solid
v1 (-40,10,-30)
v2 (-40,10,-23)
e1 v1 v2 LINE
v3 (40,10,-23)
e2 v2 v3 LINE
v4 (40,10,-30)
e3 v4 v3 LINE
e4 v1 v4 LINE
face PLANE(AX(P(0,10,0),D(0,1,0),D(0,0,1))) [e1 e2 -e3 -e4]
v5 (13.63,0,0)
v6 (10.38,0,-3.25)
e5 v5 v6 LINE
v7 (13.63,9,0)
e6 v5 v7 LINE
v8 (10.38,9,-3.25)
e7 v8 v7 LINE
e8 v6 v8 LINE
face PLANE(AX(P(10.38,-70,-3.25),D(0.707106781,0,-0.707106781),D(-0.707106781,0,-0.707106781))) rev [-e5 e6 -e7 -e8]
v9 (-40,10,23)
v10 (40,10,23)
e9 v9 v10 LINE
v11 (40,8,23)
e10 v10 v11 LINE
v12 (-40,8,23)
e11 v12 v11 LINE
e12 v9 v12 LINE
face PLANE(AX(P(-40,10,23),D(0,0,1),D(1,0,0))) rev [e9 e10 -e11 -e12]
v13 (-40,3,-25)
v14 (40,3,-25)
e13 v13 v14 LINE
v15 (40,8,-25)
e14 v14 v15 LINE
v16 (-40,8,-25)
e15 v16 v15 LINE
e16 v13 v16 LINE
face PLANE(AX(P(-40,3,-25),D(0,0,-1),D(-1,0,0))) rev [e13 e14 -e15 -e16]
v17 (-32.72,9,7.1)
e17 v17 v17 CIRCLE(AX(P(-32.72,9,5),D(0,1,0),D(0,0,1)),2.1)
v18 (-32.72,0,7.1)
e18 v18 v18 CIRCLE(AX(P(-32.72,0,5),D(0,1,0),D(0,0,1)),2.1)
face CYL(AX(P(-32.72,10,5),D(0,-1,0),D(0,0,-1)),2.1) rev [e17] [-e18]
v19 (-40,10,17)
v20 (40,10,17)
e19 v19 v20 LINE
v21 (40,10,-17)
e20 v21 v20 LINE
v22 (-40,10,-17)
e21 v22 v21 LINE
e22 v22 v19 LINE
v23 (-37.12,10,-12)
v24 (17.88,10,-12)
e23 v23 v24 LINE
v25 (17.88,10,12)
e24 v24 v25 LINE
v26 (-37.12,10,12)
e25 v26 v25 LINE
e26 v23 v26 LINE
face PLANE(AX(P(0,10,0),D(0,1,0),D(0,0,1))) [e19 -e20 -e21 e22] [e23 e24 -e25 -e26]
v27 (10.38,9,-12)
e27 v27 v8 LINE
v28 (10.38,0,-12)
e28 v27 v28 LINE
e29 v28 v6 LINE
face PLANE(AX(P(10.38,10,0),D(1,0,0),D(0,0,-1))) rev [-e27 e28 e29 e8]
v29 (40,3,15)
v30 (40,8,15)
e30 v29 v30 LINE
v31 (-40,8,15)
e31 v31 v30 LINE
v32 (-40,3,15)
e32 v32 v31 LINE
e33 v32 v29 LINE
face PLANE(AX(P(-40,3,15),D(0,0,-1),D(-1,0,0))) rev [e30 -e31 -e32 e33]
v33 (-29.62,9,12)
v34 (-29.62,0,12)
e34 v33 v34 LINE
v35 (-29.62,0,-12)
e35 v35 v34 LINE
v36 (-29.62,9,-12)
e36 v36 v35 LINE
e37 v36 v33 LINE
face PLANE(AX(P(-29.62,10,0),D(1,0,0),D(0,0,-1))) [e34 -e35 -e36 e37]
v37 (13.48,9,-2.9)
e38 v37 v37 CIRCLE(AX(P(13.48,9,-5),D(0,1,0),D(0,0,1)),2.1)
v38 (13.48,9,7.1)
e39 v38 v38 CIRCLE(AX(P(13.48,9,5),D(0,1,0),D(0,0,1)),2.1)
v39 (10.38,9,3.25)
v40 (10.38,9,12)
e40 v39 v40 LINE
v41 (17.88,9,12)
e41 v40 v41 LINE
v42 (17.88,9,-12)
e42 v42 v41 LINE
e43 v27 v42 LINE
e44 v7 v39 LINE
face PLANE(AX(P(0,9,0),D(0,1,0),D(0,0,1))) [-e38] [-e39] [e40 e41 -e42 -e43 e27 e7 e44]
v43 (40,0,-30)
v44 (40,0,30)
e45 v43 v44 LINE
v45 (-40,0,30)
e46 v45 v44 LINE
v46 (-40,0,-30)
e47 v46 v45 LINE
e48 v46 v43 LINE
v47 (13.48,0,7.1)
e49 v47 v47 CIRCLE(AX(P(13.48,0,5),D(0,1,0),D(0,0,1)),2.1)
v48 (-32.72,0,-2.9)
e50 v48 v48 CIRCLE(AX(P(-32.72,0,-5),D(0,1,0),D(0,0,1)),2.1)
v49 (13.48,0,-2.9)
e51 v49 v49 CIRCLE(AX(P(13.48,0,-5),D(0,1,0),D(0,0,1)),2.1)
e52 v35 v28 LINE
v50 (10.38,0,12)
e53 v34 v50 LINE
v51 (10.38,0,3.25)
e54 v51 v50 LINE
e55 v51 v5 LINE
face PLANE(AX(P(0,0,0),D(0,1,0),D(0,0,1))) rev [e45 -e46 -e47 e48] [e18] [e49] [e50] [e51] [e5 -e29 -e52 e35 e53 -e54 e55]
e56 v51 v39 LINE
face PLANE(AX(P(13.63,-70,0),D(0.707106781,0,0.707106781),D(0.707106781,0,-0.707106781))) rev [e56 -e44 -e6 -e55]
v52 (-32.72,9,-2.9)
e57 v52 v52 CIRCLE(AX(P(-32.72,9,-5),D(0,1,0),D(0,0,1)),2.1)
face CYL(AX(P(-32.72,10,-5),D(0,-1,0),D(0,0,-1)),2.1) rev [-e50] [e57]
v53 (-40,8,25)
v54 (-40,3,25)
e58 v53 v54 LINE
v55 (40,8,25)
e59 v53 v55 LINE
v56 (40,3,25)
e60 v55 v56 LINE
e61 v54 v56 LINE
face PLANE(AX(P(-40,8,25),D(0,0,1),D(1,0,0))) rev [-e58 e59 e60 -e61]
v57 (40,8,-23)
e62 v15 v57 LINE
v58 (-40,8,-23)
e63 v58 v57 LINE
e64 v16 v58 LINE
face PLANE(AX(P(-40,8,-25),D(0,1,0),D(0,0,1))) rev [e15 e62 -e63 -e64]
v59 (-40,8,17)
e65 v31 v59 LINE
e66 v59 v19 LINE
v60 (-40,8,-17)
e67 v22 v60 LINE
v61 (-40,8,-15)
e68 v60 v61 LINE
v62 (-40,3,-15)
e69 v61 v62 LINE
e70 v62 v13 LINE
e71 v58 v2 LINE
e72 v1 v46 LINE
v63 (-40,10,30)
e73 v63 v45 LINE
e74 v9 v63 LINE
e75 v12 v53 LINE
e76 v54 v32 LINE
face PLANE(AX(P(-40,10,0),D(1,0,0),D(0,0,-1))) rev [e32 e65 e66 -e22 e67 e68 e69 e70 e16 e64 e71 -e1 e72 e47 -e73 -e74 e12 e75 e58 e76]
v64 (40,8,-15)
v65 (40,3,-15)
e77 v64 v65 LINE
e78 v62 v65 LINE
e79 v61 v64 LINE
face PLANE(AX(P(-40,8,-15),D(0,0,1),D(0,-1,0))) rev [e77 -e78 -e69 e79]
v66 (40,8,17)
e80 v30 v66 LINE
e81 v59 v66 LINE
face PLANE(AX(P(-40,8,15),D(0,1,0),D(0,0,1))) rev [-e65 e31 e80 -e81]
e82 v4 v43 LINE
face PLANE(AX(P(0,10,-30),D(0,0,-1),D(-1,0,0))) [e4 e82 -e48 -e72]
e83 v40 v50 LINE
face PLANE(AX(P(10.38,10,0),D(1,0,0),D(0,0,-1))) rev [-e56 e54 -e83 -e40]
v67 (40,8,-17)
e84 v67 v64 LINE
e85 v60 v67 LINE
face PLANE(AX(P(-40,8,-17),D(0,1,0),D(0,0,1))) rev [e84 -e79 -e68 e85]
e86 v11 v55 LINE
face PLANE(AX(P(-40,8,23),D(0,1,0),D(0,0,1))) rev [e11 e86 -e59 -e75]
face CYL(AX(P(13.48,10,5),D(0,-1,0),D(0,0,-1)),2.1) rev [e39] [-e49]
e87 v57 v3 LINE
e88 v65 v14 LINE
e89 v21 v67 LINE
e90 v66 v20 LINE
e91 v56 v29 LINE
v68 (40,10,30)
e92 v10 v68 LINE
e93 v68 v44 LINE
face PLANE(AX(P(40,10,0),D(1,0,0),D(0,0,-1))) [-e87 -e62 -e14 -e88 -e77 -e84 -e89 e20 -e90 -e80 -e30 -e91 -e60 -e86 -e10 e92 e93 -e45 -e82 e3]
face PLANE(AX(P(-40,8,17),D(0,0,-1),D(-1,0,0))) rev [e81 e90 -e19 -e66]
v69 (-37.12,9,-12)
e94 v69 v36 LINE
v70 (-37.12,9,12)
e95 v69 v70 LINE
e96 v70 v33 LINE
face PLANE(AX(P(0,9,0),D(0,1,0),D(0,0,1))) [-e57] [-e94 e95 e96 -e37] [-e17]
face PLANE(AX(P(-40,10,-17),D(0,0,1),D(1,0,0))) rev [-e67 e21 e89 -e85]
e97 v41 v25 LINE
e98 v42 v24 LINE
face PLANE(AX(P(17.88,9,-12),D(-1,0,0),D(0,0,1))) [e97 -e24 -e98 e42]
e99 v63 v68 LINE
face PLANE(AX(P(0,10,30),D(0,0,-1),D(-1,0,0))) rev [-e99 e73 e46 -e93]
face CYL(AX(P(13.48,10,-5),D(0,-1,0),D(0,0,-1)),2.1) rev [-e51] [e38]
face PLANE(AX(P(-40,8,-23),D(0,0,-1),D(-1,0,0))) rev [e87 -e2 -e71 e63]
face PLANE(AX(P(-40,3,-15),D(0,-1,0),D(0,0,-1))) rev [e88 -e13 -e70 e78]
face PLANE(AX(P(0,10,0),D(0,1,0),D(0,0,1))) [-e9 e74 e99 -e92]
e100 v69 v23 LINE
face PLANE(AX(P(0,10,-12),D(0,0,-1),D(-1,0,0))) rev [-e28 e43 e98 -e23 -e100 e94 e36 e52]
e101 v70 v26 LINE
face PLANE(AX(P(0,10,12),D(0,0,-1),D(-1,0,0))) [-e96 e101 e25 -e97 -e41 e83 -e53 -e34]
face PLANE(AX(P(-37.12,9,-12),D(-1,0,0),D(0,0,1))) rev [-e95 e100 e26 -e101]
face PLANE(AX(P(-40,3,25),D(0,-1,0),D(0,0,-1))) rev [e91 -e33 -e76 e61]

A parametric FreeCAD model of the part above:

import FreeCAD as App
import Part
import Sketcher

V = App.Vector


def add_polygon(sketch, points):
    """Adds a closed chain of lines whose ends are joined by coincident constraints."""
    first, n = sketch.GeometryCount, len(points)
    for a, b in zip(points, points[1:] + points[:1]):
        sketch.addGeometry(Part.LineSegment(App.Vector(*a, 0), App.Vector(*b, 0)), False)
    for i in range(n):
        sketch.addConstraint(Sketcher.Constraint("Coincident", first + i, 2, first + (i + 1) % n, 1))

doc = App.newDocument("Part")
body = doc.addObject("PartDesign::Body", "Body")

# Sketch on XZ plane
sketch1 = body.newObject("Sketcher::SketchObject", "Sketch")
sketch1.AttachmentSupport = (doc.getObject("XZ_Plane"), [""])
sketch1.MapMode = "FlatFace"
add_polygon(sketch1, [(-40, -30), (-40, 30), (40, 30), (40, -30)])  # lines 0-3
sketch1.addGeometry(Part.Circle(V(-32.7, 5, 0), V(0, 0, 1), 2.1), False)  # 4
sketch1.addGeometry(Part.Circle(V(13.5, 5, 0), V(0, 0, 1), 2.1), False)  # 5
sketch1.addGeometry(Part.Circle(V(-32.7, -5, 0), V(0, 0, 1), 2.1), False)  # 6
add_polygon(sketch1, [(10.4, 12), (-29.6, 12), (-29.6, -12), (10.4, -12)])  # lines 7-10
sketch1.addGeometry(Part.Circle(V(13.5, -5, 0), V(0, 0, 1), 2.1), False)  # 11
sketch1.addConstraint(Sketcher.Constraint("Vertical", 0))
sketch1.addConstraint(Sketcher.Constraint("Horizontal", 1))
sketch1.addConstraint(Sketcher.Constraint("Vertical", 2))
sketch1.addConstraint(Sketcher.Constraint("Horizontal", 3))
sketch1.addConstraint(Sketcher.Constraint("Horizontal", 7))
sketch1.addConstraint(Sketcher.Constraint("Vertical", 8))
sketch1.addConstraint(Sketcher.Constraint("Horizontal", 9))
sketch1.addConstraint(Sketcher.Constraint("Vertical", 10))
sketch1.addConstraint(Sketcher.Constraint("Equal", 4, 5))
sketch1.addConstraint(Sketcher.Constraint("Equal", 5, 6))
sketch1.addConstraint(Sketcher.Constraint("Equal", 6, 11))
sketch1.addConstraint(Sketcher.Constraint("Symmetric", 0, 2, 2, 2, -1, 1))
sketch1.addConstraint(Sketcher.Constraint("Symmetric", 4, 3, 6, 3, -1))
sketch1.addConstraint(Sketcher.Constraint("Symmetric", 5, 3, 11, 3, -1))
sketch1.addConstraint(Sketcher.Constraint("Horizontal", 4, 3, 5, 3))
sketch1.addConstraint(Sketcher.Constraint("Diameter", 4, 4.2))
sketch1.addConstraint(Sketcher.Constraint("DistanceX", 1, 1, 1, 2, 80.0))
sketch1.addConstraint(Sketcher.Constraint("DistanceX", 7, 2, 7, 1, 40.0))
sketch1.addConstraint(Sketcher.Constraint("DistanceY", 0, 1, 0, 2, 60.0))
sketch1.addConstraint(Sketcher.Constraint("DistanceY", 8, 2, 8, 1, 24.0))
sketch1.addConstraint(Sketcher.Constraint("DistanceY", -1, 1, 4, 3, 5.0))
sketch1.addConstraint(Sketcher.Constraint("DistanceY", -1, 1, 7, 2, 12.0))
sketch1.addConstraint(Sketcher.Constraint("DistanceX", 4, 3, 5, 3, 46.2))
sketch1.addConstraint(Sketcher.Constraint("DistanceX", 4, 3, 7, 2, 3.1))
sketch1.addConstraint(Sketcher.Constraint("DistanceX", 4, 3, -1, 1, 32.72))
pad1 = body.newObject("PartDesign::Pad", "Pad")
pad1.Profile = sketch1
pad1.Length = 10
pad1.Reversed = True

# Sketch on YZ plane
sketch2 = body.newObject("Sketcher::SketchObject", "Sketch001")
sketch2.AttachmentSupport = (doc.getObject("YZ_Plane"), [""])
sketch2.MapMode = "FlatFace"
sketch2.AttachmentOffset = App.Placement(V(0, 0, 40), App.Rotation())
add_polygon(sketch2, [(10, 23), (8, 23), (8, 25), (3, 25), (3, 15), (8, 15), (8, 17), (10, 17)])  # lines 0-7
add_polygon(sketch2, [(10, -17), (8, -17), (8, -15), (3, -15), (3, -25), (8, -25), (8, -23), (10, -23)])  # lines 8-15
sketch2.addConstraint(Sketcher.Constraint("Horizontal", 0))
sketch2.addConstraint(Sketcher.Constraint("Vertical", 1))
sketch2.addConstraint(Sketcher.Constraint("Horizontal", 2))
sketch2.addConstraint(Sketcher.Constraint("Vertical", 3))
sketch2.addConstraint(Sketcher.Constraint("Horizontal", 4))
sketch2.addConstraint(Sketcher.Constraint("Vertical", 5))
sketch2.addConstraint(Sketcher.Constraint("Horizontal", 6))
sketch2.addConstraint(Sketcher.Constraint("Vertical", 7))
sketch2.addConstraint(Sketcher.Constraint("Horizontal", 8))
sketch2.addConstraint(Sketcher.Constraint("Vertical", 9))
sketch2.addConstraint(Sketcher.Constraint("Horizontal", 10))
sketch2.addConstraint(Sketcher.Constraint("Vertical", 11))
sketch2.addConstraint(Sketcher.Constraint("Horizontal", 12))
sketch2.addConstraint(Sketcher.Constraint("Vertical", 13))
sketch2.addConstraint(Sketcher.Constraint("Horizontal", 14))
sketch2.addConstraint(Sketcher.Constraint("Vertical", 15))
sketch2.addConstraint(Sketcher.Constraint("Symmetric", 5, 2, 8, 2, -1))
sketch2.addConstraint(Sketcher.Constraint("Symmetric", 3, 2, 10, 2, -1))
sketch2.addConstraint(Sketcher.Constraint("Symmetric", 1, 2, 12, 2, -1))
sketch2.addConstraint(Sketcher.Constraint("Symmetric", 7, 2, 14, 2, -1))
sketch2.addConstraint(Sketcher.Constraint("Vertical", 1, 2, 4, 2))
sketch2.addConstraint(Sketcher.Constraint("Equal", 14, 1))
sketch2.addConstraint(Sketcher.Constraint("Equal", 1, 5))
sketch2.addConstraint(Sketcher.Constraint("DistanceX", 0, 2, 0, 1, 2.0))
sketch2.addConstraint(Sketcher.Constraint("DistanceX", 2, 2, 2, 1, 5.0))
sketch2.addConstraint(Sketcher.Constraint("DistanceY", 3, 2, 3, 1, 10.0))
sketch2.addConstraint(Sketcher.Constraint("DistanceX", -1, 1, 0, 2, 8.0))
sketch2.addConstraint(Sketcher.Constraint("DistanceY", -1, 1, 0, 2, 23.0))
pocket1 = body.newObject("PartDesign::Pocket", "Pocket")
pocket1.Profile = sketch2
pocket1.Length = 80

# Sketch on XZ plane
sketch3 = body.newObject("Sketcher::SketchObject", "Sketch002")
sketch3.AttachmentSupport = (doc.getObject("XZ_Plane"), [""])
sketch3.MapMode = "FlatFace"
sketch3.AttachmentOffset = App.Placement(V(0, 0, -10), App.Rotation())
add_polygon(sketch3, [(13.6, 0), (10.4, -3.2), (10.4, 3.2)])  # lines 0-2
sketch3.addConstraint(Sketcher.Constraint("Vertical", 1))
sketch3.addConstraint(Sketcher.Constraint("PointOnObject", 2, 2, -1))
sketch3.addConstraint(Sketcher.Constraint("Perpendicular", 0, 2))
sketch3.addConstraint(Sketcher.Constraint("Equal", 0, 2))
sketch3.addConstraint(Sketcher.Constraint("DistanceY", 1, 1, 1, 2, 6.5))
sketch3.addConstraint(Sketcher.Constraint("DistanceX", -1, 1, 0, 2, 10.38))
pocket2 = body.newObject("PartDesign::Pocket", "Pocket001")
pocket2.Profile = sketch3
pocket2.Length = 80
pocket2.Reversed = True

# Sketch on XZ plane
sketch4 = body.newObject("Sketcher::SketchObject", "Sketch003")
sketch4.AttachmentSupport = (doc.getObject("XZ_Plane"), [""])
sketch4.MapMode = "FlatFace"
sketch4.AttachmentOffset = App.Placement(V(0, 0, -10), App.Rotation())
add_polygon(sketch4, [(-37, -12), (-37, 12), (18, 12), (18, -12)])  # lines 0-3
sketch4.addConstraint(Sketcher.Constraint("Vertical", 0))
sketch4.addConstraint(Sketcher.Constraint("Horizontal", 1))
sketch4.addConstraint(Sketcher.Constraint("Vertical", 2))
sketch4.addConstraint(Sketcher.Constraint("Horizontal", 3))
sketch4.addConstraint(Sketcher.Constraint("DistanceX", 1, 1, 1, 2, 55.0))
sketch4.addConstraint(Sketcher.Constraint("DistanceY", 0, 1, 0, 2, 24.0))
sketch4.addConstraint(Sketcher.Constraint("DistanceY", -1, 1, 0, 2, 12.0))
sketch4.addConstraint(Sketcher.Constraint("DistanceX", 0, 2, -1, 1, 37.12))
pocket3 = body.newObject("PartDesign::Pocket", "Pocket002")
pocket3.Profile = sketch4
pocket3.Length = 1
pocket3.Reversed = True

doc.recompute()
